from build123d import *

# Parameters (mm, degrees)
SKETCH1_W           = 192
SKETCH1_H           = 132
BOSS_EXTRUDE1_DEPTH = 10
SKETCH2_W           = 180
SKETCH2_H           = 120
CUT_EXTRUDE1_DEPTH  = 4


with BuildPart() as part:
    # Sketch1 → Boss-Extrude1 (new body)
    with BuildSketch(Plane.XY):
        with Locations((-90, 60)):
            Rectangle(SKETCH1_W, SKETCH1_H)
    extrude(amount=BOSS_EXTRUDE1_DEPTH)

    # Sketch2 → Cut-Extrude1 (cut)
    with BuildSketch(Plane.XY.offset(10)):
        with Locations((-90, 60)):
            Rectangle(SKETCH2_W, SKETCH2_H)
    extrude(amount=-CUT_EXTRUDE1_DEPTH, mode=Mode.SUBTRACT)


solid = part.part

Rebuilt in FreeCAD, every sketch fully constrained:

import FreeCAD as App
import Part
import Sketcher
from FreeCAD import Vector
Q = App.Units.Quantity


def add_polygon(sketch, points):
    """Adds a closed chain of lines whose ends are joined by coincident constraints."""
    first, n = sketch.GeometryCount, len(points)
    for a, b in zip(points, points[1:] + points[:1]):
        sketch.addGeometry(Part.LineSegment(App.Vector(*a, 0), App.Vector(*b, 0)), False)
    for i in range(n):
        sketch.addConstraint(Sketcher.Constraint("Coincident", first + i, 2, first + (i + 1) % n, 1))

doc = App.newDocument("Part")
body = doc.addObject("PartDesign::Body", "Body")

sketch1 = body.newObject("Sketcher::SketchObject", "Sketch")
sketch1.AttachmentSupport = (doc.getObject("XY_Plane"), [""])
sketch1.MapMode = "FlatFace"
add_polygon(sketch1, [(-186, 126), (-186, -6), (6, -6), (6, 126)])
sketch1.addConstraint(Sketcher.Constraint("Vertical", 0))
sketch1.addConstraint(Sketcher.Constraint("Horizontal", 1))
sketch1.addConstraint(Sketcher.Constraint("Vertical", 2))
sketch1.addConstraint(Sketcher.Constraint("Horizontal", 3))
sketch1.addConstraint(Sketcher.Constraint("DistanceX", 1, 1, 1, 2, Q("192 mm")))
sketch1.addConstraint(Sketcher.Constraint("DistanceY", 0, 2, 0, 1, Q("132 mm")))
sketch1.addConstraint(Sketcher.Constraint("DistanceX", 0, 2, -1, 1, Q("186 mm")))
sketch1.addConstraint(Sketcher.Constraint("DistanceY", 0, 2, -1, 1, Q("6 mm")))
pad1 = body.newObject("PartDesign::Pad", "Pad")
pad1.Profile = sketch1
pad1.Length = 10

sketch2 = body.newObject("Sketcher::SketchObject", "Sketch001")
sketch2.AttachmentSupport = (doc.getObject("XY_Plane"), [""])
sketch2.MapMode = "FlatFace"
sketch2.AttachmentOffset = App.Placement(Vector(0, 0, 10), App.Rotation())
add_polygon(sketch2, [(-180, 120), (-180, 0), (0, 0), (0, 120)])
sketch2.addConstraint(Sketcher.Constraint("Vertical", 0))
sketch2.addConstraint(Sketcher.Constraint("Horizontal", 1))
sketch2.addConstraint(Sketcher.Constraint("Vertical", 2))
sketch2.addConstraint(Sketcher.Constraint("Horizontal", 3))
sketch2.addConstraint(Sketcher.Constraint("Coincident", 1, 2, -1, 1))
sketch2.addConstraint(Sketcher.Constraint("DistanceX", 1, 1, 1, 2, Q("180 mm")))
sketch2.addConstraint(Sketcher.Constraint("DistanceY", 0, 2, 0, 1, Q("120 mm")))
pocket1 = body.newObject("PartDesign::Pocket", "Pocket")
pocket1.Profile = sketch2
pocket1.Length = 4

doc.recompute()
